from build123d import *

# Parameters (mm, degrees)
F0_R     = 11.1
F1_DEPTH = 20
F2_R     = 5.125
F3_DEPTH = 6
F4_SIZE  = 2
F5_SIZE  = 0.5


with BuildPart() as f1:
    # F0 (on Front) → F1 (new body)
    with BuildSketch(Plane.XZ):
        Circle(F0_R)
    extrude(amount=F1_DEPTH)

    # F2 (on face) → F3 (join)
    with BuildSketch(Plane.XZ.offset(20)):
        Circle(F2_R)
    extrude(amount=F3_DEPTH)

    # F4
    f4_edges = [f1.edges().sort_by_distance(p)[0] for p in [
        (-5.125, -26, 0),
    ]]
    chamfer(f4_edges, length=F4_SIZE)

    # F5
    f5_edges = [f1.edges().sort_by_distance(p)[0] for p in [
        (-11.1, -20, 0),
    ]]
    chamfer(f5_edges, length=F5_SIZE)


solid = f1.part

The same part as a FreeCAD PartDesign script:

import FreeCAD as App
import Part
import Sketcher

V = App.Vector


def edges_at(feature, points):
    """Names of the edges that pass closest to the given points."""
    edges = feature.Shape.Edges
    near = lambda p: min(range(len(edges)), key=lambda i: edges[i].distToShape(Part.Vertex(*p))[0])
    return sorted({f"Edge{near(p) + 1}" for p in points})

doc = App.newDocument("Part")
body = doc.addObject("PartDesign::Body", "Body")

# Sketch on XZ plane
sketch1 = body.newObject("Sketcher::SketchObject", "Sketch")
sketch1.AttachmentSupport = (doc.getObject("XZ_Plane"), [""])
sketch1.MapMode = "FlatFace"
sketch1.addGeometry(Part.Circle(V(0, 0, 0), V(0, 0, 1), 11.1), False)
sketch1.addConstraint([
    Sketcher.Constraint("Coincident", 0, 3, -1, 1),
    Sketcher.Constraint("Diameter", 0, 22.2),
])
pad1 = body.newObject("PartDesign::Pad", "Pad")
pad1.Profile = sketch1
pad1.Length = 20

# Sketch on XZ plane
sketch2 = body.newObject("Sketcher::SketchObject", "Sketch001")
sketch2.AttachmentSupport = (doc.getObject("XZ_Plane"), [""])
sketch2.MapMode = "FlatFace"
sketch2.AttachmentOffset = App.Placement(V(0, 0, 20), App.Rotation())
sketch2.addGeometry(Part.Circle(V(0, 0, 0), V(0, 0, 1), 5.125), False)
sketch2.addConstraint([
    Sketcher.Constraint("Coincident", 0, 3, -1, 1),
    Sketcher.Constraint("Diameter", 0, 10.25),
])
pad2 = body.newObject("PartDesign::Pad", "Pad001")
pad2.Profile = sketch2
pad2.Length = 6
doc.recompute()

chamfer = body.newObject("PartDesign::Chamfer", "Chamfer")
chamfer.Base = (pad2, edges_at(pad2, [(-5.125, -26, 0)]))
chamfer.Size = 2
doc.recompute()

chamfer2 = body.newObject("PartDesign::Chamfer", "Chamfer001")
chamfer2.Base = (chamfer, edges_at(chamfer, [(-11.1, -20, 0)]))
chamfer2.Size = 0.5

doc.recompute()
